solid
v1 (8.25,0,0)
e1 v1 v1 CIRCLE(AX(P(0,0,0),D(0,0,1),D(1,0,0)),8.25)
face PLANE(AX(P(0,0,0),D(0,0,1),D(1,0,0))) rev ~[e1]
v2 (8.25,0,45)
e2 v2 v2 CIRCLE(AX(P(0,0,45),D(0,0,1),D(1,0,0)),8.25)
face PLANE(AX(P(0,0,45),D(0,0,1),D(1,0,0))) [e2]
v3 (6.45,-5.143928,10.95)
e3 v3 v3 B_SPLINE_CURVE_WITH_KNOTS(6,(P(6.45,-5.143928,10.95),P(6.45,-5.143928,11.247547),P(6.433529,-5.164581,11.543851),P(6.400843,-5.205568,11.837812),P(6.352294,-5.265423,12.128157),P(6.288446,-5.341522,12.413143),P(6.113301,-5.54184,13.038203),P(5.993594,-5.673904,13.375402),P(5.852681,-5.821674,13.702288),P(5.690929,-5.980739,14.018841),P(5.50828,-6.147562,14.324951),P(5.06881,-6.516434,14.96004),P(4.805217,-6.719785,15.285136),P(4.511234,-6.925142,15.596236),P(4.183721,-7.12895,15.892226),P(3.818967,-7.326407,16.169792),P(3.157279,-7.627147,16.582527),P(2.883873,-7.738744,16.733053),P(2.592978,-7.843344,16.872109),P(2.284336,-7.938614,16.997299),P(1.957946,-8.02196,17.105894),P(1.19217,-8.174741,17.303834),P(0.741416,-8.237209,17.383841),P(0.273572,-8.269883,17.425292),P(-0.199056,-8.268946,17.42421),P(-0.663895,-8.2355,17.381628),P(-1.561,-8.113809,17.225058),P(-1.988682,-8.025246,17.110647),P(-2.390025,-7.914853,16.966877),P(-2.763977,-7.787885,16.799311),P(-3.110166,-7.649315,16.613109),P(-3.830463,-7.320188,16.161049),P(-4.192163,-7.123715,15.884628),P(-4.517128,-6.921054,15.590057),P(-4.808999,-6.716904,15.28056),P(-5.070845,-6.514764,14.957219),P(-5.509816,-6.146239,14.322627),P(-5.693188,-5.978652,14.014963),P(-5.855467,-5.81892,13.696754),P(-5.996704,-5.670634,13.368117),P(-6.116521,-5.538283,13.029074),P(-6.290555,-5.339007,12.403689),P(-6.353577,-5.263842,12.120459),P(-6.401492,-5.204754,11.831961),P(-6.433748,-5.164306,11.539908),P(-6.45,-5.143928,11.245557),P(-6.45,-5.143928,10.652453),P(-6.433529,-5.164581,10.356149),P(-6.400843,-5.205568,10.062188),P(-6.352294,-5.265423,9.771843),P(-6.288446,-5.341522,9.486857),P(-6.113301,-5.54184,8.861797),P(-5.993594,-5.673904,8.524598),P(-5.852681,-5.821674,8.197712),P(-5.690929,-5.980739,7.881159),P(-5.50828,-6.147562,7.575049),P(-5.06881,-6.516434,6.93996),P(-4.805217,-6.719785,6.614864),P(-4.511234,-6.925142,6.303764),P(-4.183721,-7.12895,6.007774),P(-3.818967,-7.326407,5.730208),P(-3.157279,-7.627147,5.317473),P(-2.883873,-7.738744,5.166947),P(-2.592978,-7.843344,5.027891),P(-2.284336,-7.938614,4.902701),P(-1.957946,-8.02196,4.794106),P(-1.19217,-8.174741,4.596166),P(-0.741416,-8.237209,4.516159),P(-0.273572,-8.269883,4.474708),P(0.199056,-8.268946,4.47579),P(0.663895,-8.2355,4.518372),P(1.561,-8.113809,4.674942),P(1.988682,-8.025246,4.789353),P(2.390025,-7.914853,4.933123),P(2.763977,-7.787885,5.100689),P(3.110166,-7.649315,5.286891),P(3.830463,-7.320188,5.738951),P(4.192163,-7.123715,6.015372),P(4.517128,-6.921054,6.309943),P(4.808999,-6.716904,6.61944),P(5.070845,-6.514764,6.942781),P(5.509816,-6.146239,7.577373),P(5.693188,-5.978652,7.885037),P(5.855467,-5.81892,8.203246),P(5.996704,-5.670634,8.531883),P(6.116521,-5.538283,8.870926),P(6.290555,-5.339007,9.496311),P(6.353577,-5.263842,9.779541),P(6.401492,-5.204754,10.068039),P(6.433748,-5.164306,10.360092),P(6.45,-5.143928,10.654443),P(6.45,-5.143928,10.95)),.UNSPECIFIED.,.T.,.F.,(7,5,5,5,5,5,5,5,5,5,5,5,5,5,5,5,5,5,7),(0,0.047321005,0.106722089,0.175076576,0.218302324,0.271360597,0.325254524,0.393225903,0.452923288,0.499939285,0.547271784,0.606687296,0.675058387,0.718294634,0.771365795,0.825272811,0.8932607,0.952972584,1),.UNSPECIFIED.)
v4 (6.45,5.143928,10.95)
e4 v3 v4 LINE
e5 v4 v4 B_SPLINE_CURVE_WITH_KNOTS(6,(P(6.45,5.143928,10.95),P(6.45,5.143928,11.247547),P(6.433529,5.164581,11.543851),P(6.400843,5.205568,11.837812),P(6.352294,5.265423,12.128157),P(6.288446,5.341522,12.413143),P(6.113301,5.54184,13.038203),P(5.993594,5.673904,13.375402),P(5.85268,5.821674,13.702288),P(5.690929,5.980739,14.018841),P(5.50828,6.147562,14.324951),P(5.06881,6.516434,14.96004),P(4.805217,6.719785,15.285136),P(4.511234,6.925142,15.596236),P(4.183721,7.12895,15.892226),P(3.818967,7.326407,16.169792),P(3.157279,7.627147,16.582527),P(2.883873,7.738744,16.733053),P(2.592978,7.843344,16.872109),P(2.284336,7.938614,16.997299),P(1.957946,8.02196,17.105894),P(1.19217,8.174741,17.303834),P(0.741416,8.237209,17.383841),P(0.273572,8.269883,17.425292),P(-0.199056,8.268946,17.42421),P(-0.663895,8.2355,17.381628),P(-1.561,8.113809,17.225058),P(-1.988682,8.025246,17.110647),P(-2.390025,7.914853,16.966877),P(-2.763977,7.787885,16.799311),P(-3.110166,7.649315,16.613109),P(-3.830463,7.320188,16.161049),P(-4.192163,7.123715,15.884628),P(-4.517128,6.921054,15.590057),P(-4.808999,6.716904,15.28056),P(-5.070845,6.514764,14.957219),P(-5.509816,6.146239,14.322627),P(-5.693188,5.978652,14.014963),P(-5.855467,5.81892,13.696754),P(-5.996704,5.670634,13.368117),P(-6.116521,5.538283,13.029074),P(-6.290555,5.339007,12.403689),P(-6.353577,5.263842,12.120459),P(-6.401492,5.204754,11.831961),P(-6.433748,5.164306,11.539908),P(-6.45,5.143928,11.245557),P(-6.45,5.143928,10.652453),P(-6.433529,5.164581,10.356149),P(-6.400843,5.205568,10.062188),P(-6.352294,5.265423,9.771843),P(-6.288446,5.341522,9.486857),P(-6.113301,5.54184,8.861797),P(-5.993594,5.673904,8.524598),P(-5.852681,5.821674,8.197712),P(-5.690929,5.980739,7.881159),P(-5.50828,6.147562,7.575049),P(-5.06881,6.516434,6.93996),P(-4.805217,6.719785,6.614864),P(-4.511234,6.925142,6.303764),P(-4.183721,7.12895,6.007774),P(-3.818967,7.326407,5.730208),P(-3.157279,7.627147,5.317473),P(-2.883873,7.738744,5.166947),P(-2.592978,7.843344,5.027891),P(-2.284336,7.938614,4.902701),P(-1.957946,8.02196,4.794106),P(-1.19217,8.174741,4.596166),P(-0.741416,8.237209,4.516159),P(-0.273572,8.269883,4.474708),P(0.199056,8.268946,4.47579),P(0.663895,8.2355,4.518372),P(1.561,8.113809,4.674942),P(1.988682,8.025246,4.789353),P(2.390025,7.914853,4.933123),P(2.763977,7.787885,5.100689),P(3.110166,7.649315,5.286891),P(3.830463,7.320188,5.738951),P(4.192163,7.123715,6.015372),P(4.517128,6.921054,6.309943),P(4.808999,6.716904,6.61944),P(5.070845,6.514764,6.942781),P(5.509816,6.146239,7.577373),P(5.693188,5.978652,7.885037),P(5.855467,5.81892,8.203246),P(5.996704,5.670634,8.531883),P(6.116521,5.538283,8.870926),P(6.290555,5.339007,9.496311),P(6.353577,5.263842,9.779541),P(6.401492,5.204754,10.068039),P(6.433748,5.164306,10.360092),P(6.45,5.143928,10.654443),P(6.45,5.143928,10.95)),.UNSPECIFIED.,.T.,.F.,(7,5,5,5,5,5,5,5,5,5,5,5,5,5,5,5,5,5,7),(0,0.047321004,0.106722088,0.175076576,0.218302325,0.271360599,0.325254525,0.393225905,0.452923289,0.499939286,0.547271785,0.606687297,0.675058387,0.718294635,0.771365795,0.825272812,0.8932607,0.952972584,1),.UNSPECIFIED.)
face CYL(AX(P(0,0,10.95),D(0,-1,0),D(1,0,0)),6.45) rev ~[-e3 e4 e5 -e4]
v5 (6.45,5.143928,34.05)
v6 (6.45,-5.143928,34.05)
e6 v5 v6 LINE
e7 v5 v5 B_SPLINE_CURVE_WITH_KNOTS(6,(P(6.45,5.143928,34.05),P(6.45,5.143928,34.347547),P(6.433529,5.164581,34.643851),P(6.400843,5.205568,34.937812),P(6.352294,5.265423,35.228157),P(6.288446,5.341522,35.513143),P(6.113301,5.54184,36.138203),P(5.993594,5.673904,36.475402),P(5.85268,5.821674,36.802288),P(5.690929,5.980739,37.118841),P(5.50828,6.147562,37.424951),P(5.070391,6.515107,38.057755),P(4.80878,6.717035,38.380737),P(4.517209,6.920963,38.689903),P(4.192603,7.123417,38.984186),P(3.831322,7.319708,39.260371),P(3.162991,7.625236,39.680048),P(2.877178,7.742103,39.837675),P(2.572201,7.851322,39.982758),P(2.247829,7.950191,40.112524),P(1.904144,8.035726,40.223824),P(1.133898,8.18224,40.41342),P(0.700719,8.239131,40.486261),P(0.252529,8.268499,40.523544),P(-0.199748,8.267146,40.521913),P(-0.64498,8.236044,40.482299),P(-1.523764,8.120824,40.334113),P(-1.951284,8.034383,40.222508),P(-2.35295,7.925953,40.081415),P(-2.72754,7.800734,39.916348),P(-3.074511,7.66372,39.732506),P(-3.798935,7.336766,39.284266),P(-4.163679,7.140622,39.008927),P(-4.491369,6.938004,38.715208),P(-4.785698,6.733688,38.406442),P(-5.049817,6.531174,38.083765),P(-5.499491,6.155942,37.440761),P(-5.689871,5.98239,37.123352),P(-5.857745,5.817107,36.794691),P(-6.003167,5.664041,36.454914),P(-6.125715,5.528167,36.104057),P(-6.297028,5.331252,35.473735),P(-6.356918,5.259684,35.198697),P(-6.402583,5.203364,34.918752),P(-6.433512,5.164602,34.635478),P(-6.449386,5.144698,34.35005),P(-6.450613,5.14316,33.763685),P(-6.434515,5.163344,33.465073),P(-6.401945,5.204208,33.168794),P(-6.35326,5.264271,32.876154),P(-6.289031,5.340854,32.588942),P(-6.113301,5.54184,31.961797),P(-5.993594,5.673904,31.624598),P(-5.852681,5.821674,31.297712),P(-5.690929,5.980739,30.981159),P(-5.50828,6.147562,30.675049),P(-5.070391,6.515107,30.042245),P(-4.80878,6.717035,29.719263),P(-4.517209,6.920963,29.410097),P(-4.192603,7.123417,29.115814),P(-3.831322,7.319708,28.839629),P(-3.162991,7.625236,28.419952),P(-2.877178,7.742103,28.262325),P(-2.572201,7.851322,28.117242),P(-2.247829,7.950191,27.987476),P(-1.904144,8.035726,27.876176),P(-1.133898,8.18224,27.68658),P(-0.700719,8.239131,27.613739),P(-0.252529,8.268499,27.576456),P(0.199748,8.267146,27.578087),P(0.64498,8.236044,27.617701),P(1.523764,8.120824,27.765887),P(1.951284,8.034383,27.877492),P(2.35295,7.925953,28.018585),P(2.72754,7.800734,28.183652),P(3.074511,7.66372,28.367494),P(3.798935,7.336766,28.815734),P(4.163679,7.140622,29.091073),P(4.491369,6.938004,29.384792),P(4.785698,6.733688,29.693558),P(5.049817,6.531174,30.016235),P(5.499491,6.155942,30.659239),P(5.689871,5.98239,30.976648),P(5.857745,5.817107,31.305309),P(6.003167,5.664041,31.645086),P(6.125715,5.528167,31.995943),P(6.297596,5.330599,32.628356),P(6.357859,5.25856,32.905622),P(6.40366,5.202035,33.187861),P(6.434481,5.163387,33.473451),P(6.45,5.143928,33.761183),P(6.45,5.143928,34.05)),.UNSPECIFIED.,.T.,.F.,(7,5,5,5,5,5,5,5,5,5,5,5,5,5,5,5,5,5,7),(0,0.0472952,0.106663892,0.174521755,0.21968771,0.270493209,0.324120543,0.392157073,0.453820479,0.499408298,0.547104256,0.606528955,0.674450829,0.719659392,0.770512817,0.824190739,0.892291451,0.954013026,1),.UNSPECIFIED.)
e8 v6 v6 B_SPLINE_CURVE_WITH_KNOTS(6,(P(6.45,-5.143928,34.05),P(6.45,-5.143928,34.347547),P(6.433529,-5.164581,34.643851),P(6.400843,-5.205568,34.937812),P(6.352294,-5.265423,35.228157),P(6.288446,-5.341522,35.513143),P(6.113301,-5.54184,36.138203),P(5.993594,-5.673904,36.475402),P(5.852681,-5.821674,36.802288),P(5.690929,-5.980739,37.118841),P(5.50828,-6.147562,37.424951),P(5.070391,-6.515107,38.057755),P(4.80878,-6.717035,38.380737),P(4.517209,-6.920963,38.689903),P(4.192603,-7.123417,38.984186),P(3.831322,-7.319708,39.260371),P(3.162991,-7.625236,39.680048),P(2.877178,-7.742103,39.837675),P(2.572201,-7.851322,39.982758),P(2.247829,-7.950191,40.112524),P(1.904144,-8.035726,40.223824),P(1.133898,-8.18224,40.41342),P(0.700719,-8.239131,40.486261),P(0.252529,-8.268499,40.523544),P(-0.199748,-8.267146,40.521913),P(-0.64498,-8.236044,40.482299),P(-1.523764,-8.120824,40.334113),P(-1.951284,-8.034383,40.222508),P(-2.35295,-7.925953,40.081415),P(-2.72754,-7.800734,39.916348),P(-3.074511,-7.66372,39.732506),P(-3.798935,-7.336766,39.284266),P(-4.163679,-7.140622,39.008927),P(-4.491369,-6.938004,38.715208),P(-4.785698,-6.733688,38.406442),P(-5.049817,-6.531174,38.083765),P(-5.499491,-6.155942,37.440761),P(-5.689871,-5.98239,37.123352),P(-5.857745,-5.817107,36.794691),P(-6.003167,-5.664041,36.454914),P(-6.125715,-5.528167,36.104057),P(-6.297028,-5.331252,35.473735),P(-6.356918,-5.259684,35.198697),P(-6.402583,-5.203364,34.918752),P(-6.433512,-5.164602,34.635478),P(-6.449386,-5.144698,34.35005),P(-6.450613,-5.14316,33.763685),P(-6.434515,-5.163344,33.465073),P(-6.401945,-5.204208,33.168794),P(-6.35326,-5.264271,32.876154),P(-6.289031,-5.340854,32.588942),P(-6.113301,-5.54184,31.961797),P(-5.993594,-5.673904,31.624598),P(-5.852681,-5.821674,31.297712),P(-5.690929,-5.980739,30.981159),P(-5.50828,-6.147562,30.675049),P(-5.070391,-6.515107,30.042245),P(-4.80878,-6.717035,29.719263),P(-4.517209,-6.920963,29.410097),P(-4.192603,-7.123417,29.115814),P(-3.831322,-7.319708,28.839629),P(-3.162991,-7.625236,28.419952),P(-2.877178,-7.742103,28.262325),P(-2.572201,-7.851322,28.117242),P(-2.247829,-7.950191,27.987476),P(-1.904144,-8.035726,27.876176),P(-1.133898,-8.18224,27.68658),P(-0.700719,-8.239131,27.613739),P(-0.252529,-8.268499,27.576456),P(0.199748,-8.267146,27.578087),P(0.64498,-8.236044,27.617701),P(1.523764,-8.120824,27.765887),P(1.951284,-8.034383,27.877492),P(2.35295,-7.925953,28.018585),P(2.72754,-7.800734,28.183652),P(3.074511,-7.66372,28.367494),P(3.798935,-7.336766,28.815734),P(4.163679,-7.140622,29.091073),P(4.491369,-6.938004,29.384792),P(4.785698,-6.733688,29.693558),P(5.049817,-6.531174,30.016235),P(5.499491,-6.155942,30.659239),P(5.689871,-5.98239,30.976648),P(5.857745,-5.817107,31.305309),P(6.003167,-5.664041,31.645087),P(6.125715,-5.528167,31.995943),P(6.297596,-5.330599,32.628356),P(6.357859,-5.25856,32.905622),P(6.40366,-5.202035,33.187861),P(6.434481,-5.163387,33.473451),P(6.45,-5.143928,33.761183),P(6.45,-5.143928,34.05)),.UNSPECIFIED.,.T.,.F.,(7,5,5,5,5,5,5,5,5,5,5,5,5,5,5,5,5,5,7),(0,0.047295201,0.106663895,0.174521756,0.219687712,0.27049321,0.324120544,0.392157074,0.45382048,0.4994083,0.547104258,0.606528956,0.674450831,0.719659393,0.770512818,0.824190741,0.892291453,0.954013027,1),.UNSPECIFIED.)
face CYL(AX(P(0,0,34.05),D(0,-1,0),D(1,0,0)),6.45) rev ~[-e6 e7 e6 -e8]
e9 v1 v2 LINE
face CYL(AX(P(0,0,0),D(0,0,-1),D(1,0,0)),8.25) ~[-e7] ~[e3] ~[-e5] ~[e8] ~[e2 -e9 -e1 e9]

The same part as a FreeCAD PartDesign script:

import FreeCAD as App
import Part
import Sketcher

V = App.Vector
Q = App.Units.Quantity

doc = App.newDocument("Part")
params = doc.addObject("Spreadsheet::Sheet", "Params")
for row, (alias, value) in enumerate([
    ("sketch1_diameter", "16.5 mm"),
    ("pad1_length", "45 mm"),
    ("sketch2_diameter", "12.9 mm"),
    ("pocket1_length", "25 mm"),
], start=1):
    params.set(f"A{row}", alias)
    params.set(f"B{row}", "=" + value)
    params.setAlias(f"B{row}", alias)

body = doc.addObject("PartDesign::Body", "Body")

# Sketch on XY plane
sketch1 = body.newObject("Sketcher::SketchObject", "Sketch")
sketch1.AttachmentSupport = (doc.getObject("XY_Plane"), [""])
sketch1.MapMode = "FlatFace"
sketch1.addGeometry(Part.Circle(V(0, 0, 0), V(0, 0, 1), 8), False)
sketch1.addConstraint(Sketcher.Constraint("Coincident", 0, 3, -1, 1))
sketch1.addConstraint(Sketcher.Constraint("Diameter", 0, Q("16.5 mm")))
sketch1.setExpression("Constraints[1]", "Params.sketch1_diameter")
pad1 = body.newObject("PartDesign::Pad", "Pad")
pad1.Profile = sketch1
pad1.setExpression("Length", "Params.pad1_length")

# Sketch on XZ plane
sketch2 = body.newObject("Sketcher::SketchObject", "Sketch001")
sketch2.AttachmentSupport = (doc.getObject("XZ_Plane"), [""])
sketch2.MapMode = "FlatFace"
sketch2.addGeometry(Part.Circle(V(0, 11, 0), V(0, 0, 1), 6), False)
sketch2.addGeometry(Part.Circle(V(0, 34, 0), V(0, 0, 1), 6), False)
sketch2.addConstraint(Sketcher.Constraint("Equal", 0, 1))
sketch2.addConstraint(Sketcher.Constraint("PointOnObject", 0, 3, -2))
sketch2.addConstraint(Sketcher.Constraint("PointOnObject", 1, 3, -2))
sketch2.addConstraint(Sketcher.Constraint("Diameter", 0, Q("12.9 mm")))
sketch2.addConstraint(Sketcher.Constraint("DistanceY", 0, 3, 1, 3, Q("23.1 mm")))
sketch2.addConstraint(Sketcher.Constraint("DistanceY", -1, 1, 0, 3, Q("10.95 mm")))
sketch2.setExpression("Constraints[3]", "Params.sketch2_diameter")
pocket1 = body.newObject("PartDesign::Pocket", "Pocket")
pocket1.Profile = sketch2
pocket1.setExpression("Length", "Params.pocket1_length")
pocket1.Midplane = True

doc.recompute()
